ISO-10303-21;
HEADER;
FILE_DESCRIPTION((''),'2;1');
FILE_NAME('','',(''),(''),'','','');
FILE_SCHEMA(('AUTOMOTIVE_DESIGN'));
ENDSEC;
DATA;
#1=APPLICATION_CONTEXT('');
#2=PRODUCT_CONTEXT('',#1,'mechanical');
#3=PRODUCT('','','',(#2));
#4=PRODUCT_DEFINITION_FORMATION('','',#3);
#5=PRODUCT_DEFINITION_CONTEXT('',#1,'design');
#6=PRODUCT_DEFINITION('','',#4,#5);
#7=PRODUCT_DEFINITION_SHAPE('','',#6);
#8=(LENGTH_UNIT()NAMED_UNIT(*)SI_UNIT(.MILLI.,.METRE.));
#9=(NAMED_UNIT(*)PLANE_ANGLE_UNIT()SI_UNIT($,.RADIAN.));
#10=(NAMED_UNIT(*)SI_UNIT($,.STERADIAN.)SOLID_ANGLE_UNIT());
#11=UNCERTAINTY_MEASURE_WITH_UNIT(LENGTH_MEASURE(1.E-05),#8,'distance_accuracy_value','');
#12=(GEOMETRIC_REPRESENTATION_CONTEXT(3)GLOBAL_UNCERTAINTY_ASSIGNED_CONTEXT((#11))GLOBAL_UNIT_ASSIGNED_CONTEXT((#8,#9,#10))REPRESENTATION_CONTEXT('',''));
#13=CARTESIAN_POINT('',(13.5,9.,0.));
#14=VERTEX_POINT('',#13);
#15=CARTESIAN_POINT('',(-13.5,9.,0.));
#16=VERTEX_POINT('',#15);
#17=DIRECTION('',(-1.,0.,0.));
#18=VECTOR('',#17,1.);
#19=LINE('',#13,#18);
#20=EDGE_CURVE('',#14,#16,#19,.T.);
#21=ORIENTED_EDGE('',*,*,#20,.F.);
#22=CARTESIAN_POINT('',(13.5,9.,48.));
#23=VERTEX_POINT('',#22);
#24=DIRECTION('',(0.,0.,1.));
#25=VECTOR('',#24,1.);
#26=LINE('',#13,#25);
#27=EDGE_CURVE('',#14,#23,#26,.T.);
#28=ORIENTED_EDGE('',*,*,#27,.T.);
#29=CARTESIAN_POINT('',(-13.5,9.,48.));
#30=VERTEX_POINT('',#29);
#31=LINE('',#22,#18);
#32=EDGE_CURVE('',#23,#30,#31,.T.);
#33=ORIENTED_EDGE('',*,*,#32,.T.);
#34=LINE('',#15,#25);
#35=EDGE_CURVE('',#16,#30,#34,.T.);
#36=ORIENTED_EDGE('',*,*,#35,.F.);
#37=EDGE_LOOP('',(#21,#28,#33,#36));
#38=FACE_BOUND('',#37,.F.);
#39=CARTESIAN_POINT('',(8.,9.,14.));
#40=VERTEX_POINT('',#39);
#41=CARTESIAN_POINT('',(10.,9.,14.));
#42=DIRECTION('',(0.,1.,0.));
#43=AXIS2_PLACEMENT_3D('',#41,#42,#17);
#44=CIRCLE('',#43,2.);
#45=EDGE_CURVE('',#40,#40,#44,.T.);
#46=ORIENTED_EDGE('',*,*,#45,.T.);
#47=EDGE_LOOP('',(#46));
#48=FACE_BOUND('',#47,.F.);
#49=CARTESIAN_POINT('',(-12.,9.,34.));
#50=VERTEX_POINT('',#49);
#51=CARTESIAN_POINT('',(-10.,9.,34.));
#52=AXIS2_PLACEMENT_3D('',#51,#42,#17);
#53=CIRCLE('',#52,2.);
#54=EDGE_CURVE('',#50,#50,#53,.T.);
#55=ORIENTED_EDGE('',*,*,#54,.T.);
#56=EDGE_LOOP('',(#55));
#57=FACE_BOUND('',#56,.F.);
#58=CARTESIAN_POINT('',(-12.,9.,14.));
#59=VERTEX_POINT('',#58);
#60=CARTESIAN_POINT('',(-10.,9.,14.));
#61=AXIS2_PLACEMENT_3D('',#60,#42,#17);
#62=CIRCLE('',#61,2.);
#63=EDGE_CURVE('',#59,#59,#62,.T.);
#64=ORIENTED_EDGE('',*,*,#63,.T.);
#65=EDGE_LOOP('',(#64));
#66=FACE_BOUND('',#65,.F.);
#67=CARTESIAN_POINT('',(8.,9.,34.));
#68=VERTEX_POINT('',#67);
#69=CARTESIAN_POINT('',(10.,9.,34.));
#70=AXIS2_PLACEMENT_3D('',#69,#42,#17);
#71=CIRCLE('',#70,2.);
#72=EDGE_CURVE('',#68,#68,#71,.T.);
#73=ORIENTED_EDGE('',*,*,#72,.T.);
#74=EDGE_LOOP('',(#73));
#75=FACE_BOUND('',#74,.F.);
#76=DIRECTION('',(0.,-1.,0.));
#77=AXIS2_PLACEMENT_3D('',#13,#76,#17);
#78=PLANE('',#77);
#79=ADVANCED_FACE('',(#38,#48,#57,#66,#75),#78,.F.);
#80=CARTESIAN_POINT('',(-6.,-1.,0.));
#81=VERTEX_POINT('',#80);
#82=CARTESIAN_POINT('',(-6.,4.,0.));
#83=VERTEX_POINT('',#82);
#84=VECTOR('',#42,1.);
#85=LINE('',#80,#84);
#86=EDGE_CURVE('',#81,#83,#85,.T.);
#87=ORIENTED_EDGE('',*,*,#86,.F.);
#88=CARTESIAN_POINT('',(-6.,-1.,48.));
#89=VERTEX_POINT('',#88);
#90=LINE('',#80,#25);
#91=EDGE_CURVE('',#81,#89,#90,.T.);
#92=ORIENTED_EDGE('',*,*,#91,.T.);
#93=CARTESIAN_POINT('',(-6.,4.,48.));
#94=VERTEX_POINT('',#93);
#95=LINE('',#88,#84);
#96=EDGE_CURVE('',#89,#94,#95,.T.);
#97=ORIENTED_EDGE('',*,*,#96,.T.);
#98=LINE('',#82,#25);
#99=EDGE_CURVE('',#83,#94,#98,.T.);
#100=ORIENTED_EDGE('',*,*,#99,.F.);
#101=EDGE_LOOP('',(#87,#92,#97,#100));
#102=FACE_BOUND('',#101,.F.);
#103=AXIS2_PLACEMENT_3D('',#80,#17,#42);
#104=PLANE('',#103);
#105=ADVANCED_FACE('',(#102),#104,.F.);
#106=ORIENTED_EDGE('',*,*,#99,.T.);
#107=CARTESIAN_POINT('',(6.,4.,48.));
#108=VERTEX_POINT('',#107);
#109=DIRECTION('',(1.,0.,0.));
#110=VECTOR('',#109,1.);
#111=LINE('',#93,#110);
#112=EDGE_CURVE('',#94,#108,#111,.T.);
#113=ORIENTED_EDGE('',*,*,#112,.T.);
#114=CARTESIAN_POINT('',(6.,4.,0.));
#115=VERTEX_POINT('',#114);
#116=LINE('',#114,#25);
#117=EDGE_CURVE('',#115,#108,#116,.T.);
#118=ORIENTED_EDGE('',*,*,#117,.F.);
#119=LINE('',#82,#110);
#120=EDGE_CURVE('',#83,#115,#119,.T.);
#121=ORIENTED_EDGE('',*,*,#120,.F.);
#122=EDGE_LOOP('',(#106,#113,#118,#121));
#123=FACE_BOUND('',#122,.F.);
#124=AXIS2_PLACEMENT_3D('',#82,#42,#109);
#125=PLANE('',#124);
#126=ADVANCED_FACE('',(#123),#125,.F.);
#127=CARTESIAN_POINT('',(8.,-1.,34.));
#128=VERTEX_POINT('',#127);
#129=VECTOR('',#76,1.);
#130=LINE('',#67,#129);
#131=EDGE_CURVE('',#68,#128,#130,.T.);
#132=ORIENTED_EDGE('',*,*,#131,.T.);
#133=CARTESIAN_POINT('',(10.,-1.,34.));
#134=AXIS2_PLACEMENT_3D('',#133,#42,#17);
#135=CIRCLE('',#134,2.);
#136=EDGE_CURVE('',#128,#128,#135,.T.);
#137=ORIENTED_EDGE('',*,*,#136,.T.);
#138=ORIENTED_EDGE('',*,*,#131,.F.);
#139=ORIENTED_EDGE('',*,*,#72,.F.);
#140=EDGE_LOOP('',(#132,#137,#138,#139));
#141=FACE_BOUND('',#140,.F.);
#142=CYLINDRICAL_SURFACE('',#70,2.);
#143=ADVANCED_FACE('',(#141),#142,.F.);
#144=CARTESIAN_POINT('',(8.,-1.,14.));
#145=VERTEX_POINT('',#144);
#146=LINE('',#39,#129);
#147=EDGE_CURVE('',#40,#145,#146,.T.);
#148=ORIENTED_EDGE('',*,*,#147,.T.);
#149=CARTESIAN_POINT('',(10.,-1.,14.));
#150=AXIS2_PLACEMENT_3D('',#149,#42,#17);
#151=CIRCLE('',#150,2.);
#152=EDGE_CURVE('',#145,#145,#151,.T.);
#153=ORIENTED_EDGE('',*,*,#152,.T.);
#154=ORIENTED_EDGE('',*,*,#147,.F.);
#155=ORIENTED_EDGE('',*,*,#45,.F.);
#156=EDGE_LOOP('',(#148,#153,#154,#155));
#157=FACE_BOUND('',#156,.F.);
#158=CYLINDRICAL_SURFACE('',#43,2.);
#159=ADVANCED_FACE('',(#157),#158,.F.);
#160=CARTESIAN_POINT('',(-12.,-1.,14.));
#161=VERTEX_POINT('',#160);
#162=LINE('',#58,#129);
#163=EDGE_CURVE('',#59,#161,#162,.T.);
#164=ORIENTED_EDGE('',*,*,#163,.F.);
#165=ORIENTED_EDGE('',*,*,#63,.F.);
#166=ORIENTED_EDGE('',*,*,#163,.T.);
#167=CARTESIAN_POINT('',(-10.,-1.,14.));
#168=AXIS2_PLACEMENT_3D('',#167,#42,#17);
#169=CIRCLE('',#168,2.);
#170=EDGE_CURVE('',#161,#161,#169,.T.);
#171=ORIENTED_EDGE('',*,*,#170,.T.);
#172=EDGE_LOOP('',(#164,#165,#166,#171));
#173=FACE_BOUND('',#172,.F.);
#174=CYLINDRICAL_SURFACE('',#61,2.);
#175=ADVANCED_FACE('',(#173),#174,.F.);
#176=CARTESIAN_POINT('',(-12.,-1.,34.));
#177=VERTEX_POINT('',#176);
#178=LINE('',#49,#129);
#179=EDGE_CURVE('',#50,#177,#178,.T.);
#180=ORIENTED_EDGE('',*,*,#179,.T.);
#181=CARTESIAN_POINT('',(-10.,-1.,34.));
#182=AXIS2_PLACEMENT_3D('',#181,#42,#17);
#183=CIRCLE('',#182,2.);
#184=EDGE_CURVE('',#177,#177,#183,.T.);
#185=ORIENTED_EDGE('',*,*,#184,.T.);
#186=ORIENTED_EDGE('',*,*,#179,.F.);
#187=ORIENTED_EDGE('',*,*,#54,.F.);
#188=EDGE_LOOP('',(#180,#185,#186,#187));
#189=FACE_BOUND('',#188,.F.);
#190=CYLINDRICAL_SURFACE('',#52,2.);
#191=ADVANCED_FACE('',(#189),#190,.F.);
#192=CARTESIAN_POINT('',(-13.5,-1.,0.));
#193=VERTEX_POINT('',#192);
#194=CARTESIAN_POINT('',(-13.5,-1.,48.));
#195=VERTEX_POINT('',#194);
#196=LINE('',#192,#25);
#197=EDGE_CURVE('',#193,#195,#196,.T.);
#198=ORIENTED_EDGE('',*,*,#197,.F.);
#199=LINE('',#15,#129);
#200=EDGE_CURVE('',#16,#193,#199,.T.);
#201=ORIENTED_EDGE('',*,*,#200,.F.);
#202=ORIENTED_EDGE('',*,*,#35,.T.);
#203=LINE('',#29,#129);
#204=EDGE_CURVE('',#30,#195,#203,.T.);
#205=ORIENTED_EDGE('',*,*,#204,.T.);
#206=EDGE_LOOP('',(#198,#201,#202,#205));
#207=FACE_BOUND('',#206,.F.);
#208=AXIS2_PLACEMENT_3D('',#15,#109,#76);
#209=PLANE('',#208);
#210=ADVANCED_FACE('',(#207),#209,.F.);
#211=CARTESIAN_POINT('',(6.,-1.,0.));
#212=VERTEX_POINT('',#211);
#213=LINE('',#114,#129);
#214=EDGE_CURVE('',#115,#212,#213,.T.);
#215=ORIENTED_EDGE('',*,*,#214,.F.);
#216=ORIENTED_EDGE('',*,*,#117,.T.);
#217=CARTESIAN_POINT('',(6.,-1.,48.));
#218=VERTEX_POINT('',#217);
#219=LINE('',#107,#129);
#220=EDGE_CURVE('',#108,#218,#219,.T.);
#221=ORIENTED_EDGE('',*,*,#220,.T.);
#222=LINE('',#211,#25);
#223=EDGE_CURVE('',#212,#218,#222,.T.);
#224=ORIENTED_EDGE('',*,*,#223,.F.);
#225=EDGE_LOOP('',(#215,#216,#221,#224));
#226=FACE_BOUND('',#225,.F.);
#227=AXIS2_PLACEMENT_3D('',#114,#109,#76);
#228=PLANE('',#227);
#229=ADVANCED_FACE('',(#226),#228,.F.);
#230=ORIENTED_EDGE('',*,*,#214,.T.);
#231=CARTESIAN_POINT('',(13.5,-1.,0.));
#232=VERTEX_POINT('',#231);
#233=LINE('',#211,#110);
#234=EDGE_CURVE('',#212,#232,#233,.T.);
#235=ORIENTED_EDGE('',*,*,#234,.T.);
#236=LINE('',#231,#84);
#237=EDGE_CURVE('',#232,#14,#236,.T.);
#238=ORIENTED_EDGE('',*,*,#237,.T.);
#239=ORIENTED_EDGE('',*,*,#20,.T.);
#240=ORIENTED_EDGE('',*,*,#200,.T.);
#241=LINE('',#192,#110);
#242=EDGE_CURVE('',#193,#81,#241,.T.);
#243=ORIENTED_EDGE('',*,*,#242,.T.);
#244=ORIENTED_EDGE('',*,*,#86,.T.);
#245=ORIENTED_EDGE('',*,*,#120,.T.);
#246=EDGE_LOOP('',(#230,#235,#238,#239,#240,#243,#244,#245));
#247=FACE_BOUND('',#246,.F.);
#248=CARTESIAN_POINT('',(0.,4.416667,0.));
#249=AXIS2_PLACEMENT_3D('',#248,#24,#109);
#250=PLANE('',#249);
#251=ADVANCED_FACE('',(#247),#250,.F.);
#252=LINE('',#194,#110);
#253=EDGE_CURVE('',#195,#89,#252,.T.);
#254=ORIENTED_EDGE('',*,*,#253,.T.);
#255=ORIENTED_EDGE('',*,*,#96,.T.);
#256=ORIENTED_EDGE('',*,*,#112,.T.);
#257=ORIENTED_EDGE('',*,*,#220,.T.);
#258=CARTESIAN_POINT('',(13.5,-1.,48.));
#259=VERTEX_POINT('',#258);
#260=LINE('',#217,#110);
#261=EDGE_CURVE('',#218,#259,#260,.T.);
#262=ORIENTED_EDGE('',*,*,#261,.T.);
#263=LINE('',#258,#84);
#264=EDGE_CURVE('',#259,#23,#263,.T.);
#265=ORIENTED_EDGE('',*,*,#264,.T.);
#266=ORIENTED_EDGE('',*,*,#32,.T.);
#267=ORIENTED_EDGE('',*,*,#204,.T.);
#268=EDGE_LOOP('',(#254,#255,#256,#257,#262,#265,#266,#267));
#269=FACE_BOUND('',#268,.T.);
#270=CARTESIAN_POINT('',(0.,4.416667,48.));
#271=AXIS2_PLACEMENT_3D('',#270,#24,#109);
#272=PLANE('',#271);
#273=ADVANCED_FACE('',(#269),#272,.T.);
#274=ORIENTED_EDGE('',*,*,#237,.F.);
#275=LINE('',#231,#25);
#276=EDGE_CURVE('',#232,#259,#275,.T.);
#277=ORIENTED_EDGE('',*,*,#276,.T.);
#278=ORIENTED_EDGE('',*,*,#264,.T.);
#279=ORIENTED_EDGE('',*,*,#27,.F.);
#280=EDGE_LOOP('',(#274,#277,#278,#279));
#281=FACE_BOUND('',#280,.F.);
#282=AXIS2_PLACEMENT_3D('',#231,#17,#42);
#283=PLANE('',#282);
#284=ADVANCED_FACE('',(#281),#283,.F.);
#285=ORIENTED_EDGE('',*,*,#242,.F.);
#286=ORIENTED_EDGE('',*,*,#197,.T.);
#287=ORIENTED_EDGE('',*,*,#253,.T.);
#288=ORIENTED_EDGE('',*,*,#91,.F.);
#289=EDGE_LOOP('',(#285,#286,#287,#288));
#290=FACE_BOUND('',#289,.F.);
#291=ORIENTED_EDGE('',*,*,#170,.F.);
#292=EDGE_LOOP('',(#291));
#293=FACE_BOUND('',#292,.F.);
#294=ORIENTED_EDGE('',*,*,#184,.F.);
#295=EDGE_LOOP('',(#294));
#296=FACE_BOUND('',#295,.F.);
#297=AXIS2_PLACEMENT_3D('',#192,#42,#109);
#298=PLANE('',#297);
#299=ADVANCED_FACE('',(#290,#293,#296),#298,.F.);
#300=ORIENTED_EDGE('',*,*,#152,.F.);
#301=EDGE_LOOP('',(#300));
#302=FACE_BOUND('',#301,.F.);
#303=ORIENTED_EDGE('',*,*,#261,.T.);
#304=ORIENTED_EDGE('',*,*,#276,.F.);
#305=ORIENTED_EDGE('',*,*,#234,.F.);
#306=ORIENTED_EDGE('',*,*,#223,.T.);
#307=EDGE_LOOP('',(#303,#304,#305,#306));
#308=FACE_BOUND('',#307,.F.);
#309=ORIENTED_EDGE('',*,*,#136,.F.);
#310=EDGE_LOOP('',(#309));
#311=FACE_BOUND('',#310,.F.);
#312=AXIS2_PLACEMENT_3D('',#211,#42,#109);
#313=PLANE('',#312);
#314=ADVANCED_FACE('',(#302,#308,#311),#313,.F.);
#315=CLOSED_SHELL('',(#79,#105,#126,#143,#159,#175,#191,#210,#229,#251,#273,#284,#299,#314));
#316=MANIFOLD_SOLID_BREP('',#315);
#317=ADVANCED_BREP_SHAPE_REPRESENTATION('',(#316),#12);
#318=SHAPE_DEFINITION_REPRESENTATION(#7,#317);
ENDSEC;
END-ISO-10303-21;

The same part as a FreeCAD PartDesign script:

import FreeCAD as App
import Part
import Sketcher


def add_polygon(sketch, points):
    """Adds a closed chain of lines whose ends are joined by coincident constraints."""
    first, n = sketch.GeometryCount, len(points)
    for a, b in zip(points, points[1:] + points[:1]):
        sketch.addGeometry(Part.LineSegment(App.Vector(*a, 0), App.Vector(*b, 0)), False)
    for i in range(n):
        sketch.addConstraint(Sketcher.Constraint("Coincident", first + i, 2, first + (i + 1) % n, 1))

doc = App.newDocument("Part")
params = doc.addObject("Spreadsheet::Sheet", "Params")
for row, (alias, value) in enumerate([
    ("sketch1_width", "12 mm"),
    ("sketch1_width2", "27 mm"),
    ("sketch1_height", "5 mm"),
    ("sketch1_height2", "10 mm"),
    ("pad1_length", "48 mm"),
    ("sketch2_diameter", "4 mm"),
    ("pocket1_length", "10 mm"),
], start=1):
    params.set(f"A{row}", alias)
    params.set(f"B{row}", "=" + value)
    params.setAlias(f"B{row}", alias)

body = doc.addObject("PartDesign::Body", "Body")

# Sketch on XY plane
sketch1 = body.newObject("Sketcher::SketchObject", "Sketch")
sketch1.AttachmentSupport = (doc.getObject("XY_Plane"), [""])
sketch1.MapMode = "FlatFace"
add_polygon(sketch1, [(-6, 4), (6, 4), (6, -1), (14, -1), (14, 9), (-14, 9), (-14, -1), (-6, -1)])  # lines 0-7
sketch1.addConstraint(Sketcher.Constraint("Horizontal", 0))
sketch1.addConstraint(Sketcher.Constraint("Vertical", 1))
sketch1.addConstraint(Sketcher.Constraint("Horizontal", 2))
sketch1.addConstraint(Sketcher.Constraint("Vertical", 3))
sketch1.addConstraint(Sketcher.Constraint("Horizontal", 4))
sketch1.addConstraint(Sketcher.Constraint("Vertical", 5))
sketch1.addConstraint(Sketcher.Constraint("Horizontal", 6))
sketch1.addConstraint(Sketcher.Constraint("Vertical", 7))
sketch1.addConstraint(Sketcher.Constraint("Symmetric", 2, 2, 5, 2, -2))
sketch1.addConstraint(Sketcher.Constraint("Equal", 2, 6))
sketch1.addConstraint(Sketcher.Constraint("DistanceX", 0, 1, 0, 2, 12.0))
sketch1.addConstraint(Sketcher.Constraint("DistanceX", 4, 2, 4, 1, 27.0))
sketch1.addConstraint(Sketcher.Constraint("DistanceY", 1, 2, 1, 1, 5.0))
sketch1.addConstraint(Sketcher.Constraint("DistanceY", 3, 1, 3, 2, 10.0))
sketch1.addConstraint(Sketcher.Constraint("DistanceY", -1, 1, 0, 2, 4.0))
sketch1.setExpression("Constraints[18]", "Params.sketch1_width")
sketch1.setExpression("Constraints[19]", "Params.sketch1_width2")
sketch1.setExpression("Constraints[20]", "Params.sketch1_height")
sketch1.setExpression("Constraints[21]", "Params.sketch1_height2")
pad1 = body.newObject("PartDesign::Pad", "Pad")
pad1.Profile = sketch1
pad1.setExpression("Length", "Params.pad1_length")

# Sketch on XZ plane
sketch2 = body.newObject("Sketcher::SketchObject", "Sketch001")
sketch2.AttachmentSupport = (doc.getObject("XZ_Plane"), [""])
sketch2.MapMode = "FlatFace"
sketch2.AttachmentOffset = App.Placement(App.Vector(0, 0, -9), App.Rotation())
sketch2.addGeometry(Part.Circle(App.Vector(10, 34, 0), App.Vector(0, 0, 1), 2), False)
sketch2.addGeometry(Part.Circle(App.Vector(-10, 34, 0), App.Vector(0, 0, 1), 2), False)
sketch2.addGeometry(Part.Circle(App.Vector(-10, 14, 0), App.Vector(0, 0, 1), 2), False)
sketch2.addGeometry(Part.Circle(App.Vector(10, 14, 0), App.Vector(0, 0, 1), 2), False)
sketch2.addConstraint(Sketcher.Constraint("Equal", 0, 1))
sketch2.addConstraint(Sketcher.Constraint("Equal", 1, 2))
sketch2.addConstraint(Sketcher.Constraint("Equal", 2, 3))
sketch2.addConstraint(Sketcher.Constraint("Symmetric", 0, 3, 1, 3, -2))
sketch2.addConstraint(Sketcher.Constraint("Symmetric", 2, 3, 3, 3, -2))
sketch2.addConstraint(Sketcher.Constraint("Vertical", 1, 3, 2, 3))
sketch2.addConstraint(Sketcher.Constraint("Diameter", 0, 4.0))
sketch2.addConstraint(Sketcher.Constraint("DistanceX", -1, 1, 0, 3, 10.0))
sketch2.addConstraint(Sketcher.Constraint("DistanceY", -1, 1, 0, 3, 34.0))
sketch2.addConstraint(Sketcher.Constraint("DistanceY", -1, 1, 2, 3, 14.0))
sketch2.setExpression("Constraints[6]", "Params.sketch2_diameter")
pocket1 = body.newObject("PartDesign::Pocket", "Pocket")
pocket1.Profile = sketch2
pocket1.setExpression("Length", "Params.pocket1_length")
pocket1.Reversed = True

doc.recompute()
